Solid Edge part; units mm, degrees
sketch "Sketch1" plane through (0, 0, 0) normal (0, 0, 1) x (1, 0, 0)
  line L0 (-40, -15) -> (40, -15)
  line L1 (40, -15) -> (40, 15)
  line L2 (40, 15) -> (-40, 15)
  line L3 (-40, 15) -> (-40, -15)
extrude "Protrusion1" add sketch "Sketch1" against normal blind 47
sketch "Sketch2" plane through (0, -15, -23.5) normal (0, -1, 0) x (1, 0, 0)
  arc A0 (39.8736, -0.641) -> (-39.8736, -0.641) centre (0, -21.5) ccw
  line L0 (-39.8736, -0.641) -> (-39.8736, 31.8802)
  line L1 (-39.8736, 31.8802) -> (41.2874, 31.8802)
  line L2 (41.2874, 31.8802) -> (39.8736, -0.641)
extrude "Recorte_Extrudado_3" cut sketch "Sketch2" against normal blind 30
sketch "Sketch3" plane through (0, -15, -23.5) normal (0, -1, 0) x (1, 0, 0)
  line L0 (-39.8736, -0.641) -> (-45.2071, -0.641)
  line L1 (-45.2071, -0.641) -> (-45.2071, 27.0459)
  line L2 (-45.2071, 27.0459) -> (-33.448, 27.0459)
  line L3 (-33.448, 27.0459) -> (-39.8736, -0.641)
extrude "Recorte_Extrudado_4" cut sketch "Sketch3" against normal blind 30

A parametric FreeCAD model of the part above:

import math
import FreeCAD as App
import Part
import Sketcher
from FreeCAD import Vector
Q = App.Units.Quantity


def add_polygon(sketch, points):
    """Adds a closed chain of lines whose ends are joined by coincident constraints."""
    first, n = sketch.GeometryCount, len(points)
    for a, b in zip(points, points[1:] + points[:1]):
        sketch.addGeometry(Part.LineSegment(App.Vector(*a, 0), App.Vector(*b, 0)), False)
    for i in range(n):
        sketch.addConstraint(Sketcher.Constraint("Coincident", first + i, 2, first + (i + 1) % n, 1))

doc = App.newDocument("Part")
params = doc.addObject("Spreadsheet::Sheet", "Params")
for row, (alias, value) in enumerate([
    ("pad1_length", "1.8503937 in"),
    ("pocket1_length", "1.1811024 in"),
    ("sketch3_length", "1.119 in"),
    ("pocket2_length", "1.1811024 in"),
], start=1):
    params.set(f"A{row}", alias)
    params.set(f"B{row}", "=" + value)
    params.setAlias(f"B{row}", alias)

body = doc.addObject("PartDesign::Body", "Body")

# Sketch on XY plane
sketch1 = doc.addObject("Sketcher::SketchObject", "Sketch")
body.addObject(sketch1)
sketch1.AttachmentSupport = (doc.XY_Plane, [""])
sketch1.MapMode = "FlatFace"
add_polygon(sketch1, [(-40, 15), (-40, -15), (40, -15), (40, 15)])  # lines 0-3
sketch1.addConstraint(Sketcher.Constraint("Vertical", 0))
sketch1.addConstraint(Sketcher.Constraint("Horizontal", 1))
sketch1.addConstraint(Sketcher.Constraint("Vertical", 2))
sketch1.addConstraint(Sketcher.Constraint("Horizontal", 3))
sketch1.addConstraint(Sketcher.Constraint("Symmetric", 0, 2, 2, 2, -1, 1))
sketch1.addConstraint(Sketcher.Constraint("DistanceX", 1, 1, 1, 2, Q("3.1496 in")))
sketch1.addConstraint(Sketcher.Constraint("DistanceY", 0, 2, 0, 1, Q("1.1811 in")))
pad1 = doc.addObject("PartDesign::Pad", "Pad")
body.addObject(pad1)
pad1.Profile = sketch1
pad1.setExpression("Length", "Params.pad1_length")
pad1.Reversed = True

# Sketch on XZ plane
sketch2 = doc.addObject("Sketcher::SketchObject", "Sketch001")
body.addObject(sketch2)
sketch2.AttachmentSupport = (doc.XZ_Plane, [""])
sketch2.MapMode = "FlatFace"
sketch2.AttachmentOffset = App.Placement(Vector(0, 0, 15), App.Rotation())
sketch2.addGeometry(Part.ArcOfCircle(Part.Circle(Vector(0, -45, 0), Vector(0, 0, 1), 45.000021), math.radians(27.615329), math.radians(152.384671)), False)
sketch2.addGeometry(Part.LineSegment(Vector(39.8736, -24.141, 0), Vector(41.2874, 8.3802, 0)), False)
sketch2.addGeometry(Part.LineSegment(Vector(41.2874, 8.3802, 0), Vector(-39.8736, 8.3802, 0)), False)
sketch2.addGeometry(Part.LineSegment(Vector(-39.8736, 8.3802, 0), Vector(-39.8736, -24.141, 0)), False)
sketch2.addConstraint(Sketcher.Constraint("Coincident", 0, 1, 1, 1))
sketch2.addConstraint(Sketcher.Constraint("Coincident", 1, 2, 2, 1))
sketch2.addConstraint(Sketcher.Constraint("Coincident", 2, 2, 3, 1))
sketch2.addConstraint(Sketcher.Constraint("Coincident", 3, 2, 0, 2))
sketch2.addConstraint(Sketcher.Constraint("Horizontal", 2))
sketch2.addConstraint(Sketcher.Constraint("Vertical", 3))
sketch2.addConstraint(Sketcher.Constraint("Symmetric", 0, 1, 3, 2, -2))
sketch2.addConstraint(Sketcher.Constraint("Angle", 1, Q("87.5107 deg")))
sketch2.addConstraint(Sketcher.Constraint("Radius", 0, 45.0))
sketch2.addConstraint(Sketcher.Constraint("DistanceX", 2, 2, 2, 1, 81.161))
sketch2.addConstraint(Sketcher.Constraint("DistanceY", 3, 2, 3, 1, 32.5212))
sketch2.addConstraint(Sketcher.Constraint("DistanceY", 0, 3, -1, 1, 45.0))
pocket1 = doc.addObject("PartDesign::Pocket", "Pocket")
body.addObject(pocket1)
pocket1.Profile = sketch2
pocket1.setExpression("Length", "Params.pocket1_length")

# Sketch on XZ plane
sketch3 = doc.addObject("Sketcher::SketchObject", "Sketch002")
body.addObject(sketch3)
sketch3.AttachmentSupport = (doc.XZ_Plane, [""])
sketch3.MapMode = "FlatFace"
sketch3.AttachmentOffset = App.Placement(Vector(0, 0, 15), App.Rotation())
add_polygon(sketch3, [(-45.2071, -24.141), (-39.8736, -24.141), (-33.448, 3.5459), (-45.2071, 3.5459)])  # lines 0-3
sketch3.addConstraint(Sketcher.Constraint("Horizontal", 0))
sketch3.addConstraint(Sketcher.Constraint("Horizontal", 2))
sketch3.addConstraint(Sketcher.Constraint("Vertical", 3))
sketch3.addConstraint(Sketcher.Constraint("Distance", 1, Q("1.119 in")))
sketch3.addConstraint(Sketcher.Constraint("DistanceX", 0, 1, 0, 2, 5.3335))
sketch3.addConstraint(Sketcher.Constraint("DistanceX", 2, 2, 2, 1, 11.759))
sketch3.addConstraint(Sketcher.Constraint("DistanceY", -1, 1, 1, 2, Q("0.1396 in")))
sketch3.addConstraint(Sketcher.Constraint("DistanceX", 2, 2, -1, 1, Q("1.7798 in")))
sketch3.setExpression("Constraints[7]", "Params.sketch3_length")
pocket2 = doc.addObject("PartDesign::Pocket", "Pocket001")
body.addObject(pocket2)
pocket2.Profile = sketch3
pocket2.setExpression("Length", "Params.pocket2_length")

doc.recompute()
